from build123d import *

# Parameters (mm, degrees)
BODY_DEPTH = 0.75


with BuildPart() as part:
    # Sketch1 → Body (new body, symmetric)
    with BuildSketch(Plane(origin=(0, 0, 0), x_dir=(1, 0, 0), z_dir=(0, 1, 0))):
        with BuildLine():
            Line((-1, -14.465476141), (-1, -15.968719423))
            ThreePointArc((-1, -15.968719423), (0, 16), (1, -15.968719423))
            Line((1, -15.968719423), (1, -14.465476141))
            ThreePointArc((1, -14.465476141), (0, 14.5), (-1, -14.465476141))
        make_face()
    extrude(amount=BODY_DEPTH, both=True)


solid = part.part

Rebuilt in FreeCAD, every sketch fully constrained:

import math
import FreeCAD as App
import Part
import Sketcher
from FreeCAD import Vector
Q = App.Units.Quantity

doc = App.newDocument("Part")
params = doc.addObject("Spreadsheet::Sheet", "Params")
for row, (alias, value) in enumerate([
    ("sketch1_radius", "16 mm"),
    ("sketch1_radius2", "14.5 mm"),
    ("pad1_length", "1.5 mm"),
], start=1):
    params.set(f"A{row}", alias)
    params.set(f"B{row}", "=" + value)
    params.setAlias(f"B{row}", alias)

body = doc.addObject("PartDesign::Body", "Body")

# Sketch on XZ plane
sketch1 = body.newObject("Sketcher::SketchObject", "Sketch")
sketch1.AttachmentSupport = (doc.getObject("XZ_Plane"), [""])
sketch1.MapMode = "FlatFace"
sketch1.addGeometry(Part.LineSegment(Vector(-1, 15.968719, 0), Vector(-1, 14.465476, 0)), False)
sketch1.addGeometry(Part.ArcOfCircle(Part.Circle(Vector(0, 0, 0), Vector(0, 0, 1), 14.5), math.radians(93.954572), math.radians(446.045428)), False)
sketch1.addGeometry(Part.LineSegment(Vector(1, 14.465476, 0), Vector(1, 15.968719, 0)), False)
sketch1.addGeometry(Part.ArcOfCircle(Part.Circle(Vector(0, 0, 0), Vector(0, 0, 1), 16), math.radians(93.583322), math.radians(446.416678)), False)
sketch1.addConstraint(Sketcher.Constraint("Coincident", 0, 2, 1, 1))
sketch1.addConstraint(Sketcher.Constraint("Coincident", 1, 2, 2, 1))
sketch1.addConstraint(Sketcher.Constraint("Coincident", 2, 2, 3, 2))
sketch1.addConstraint(Sketcher.Constraint("Coincident", 3, 1, 0, 1))
sketch1.addConstraint(Sketcher.Constraint("Vertical", 0))
sketch1.addConstraint(Sketcher.Constraint("Vertical", 2))
sketch1.addConstraint(Sketcher.Constraint("Coincident", 1, 3, -1, 1))
sketch1.addConstraint(Sketcher.Constraint("Coincident", 3, 3, -1, 1))
sketch1.addConstraint(Sketcher.Constraint("Horizontal", 0, 2, 1, 2))
sketch1.addConstraint(Sketcher.Constraint("Radius", 3, Q("16 mm")))
sketch1.addConstraint(Sketcher.Constraint("Radius", 1, Q("14.5 mm")))
sketch1.addConstraint(Sketcher.Constraint("DistanceX", 0, 2, -1, 1, Q("1 mm")))
sketch1.setExpression("Constraints[9]", "Params.sketch1_radius")
sketch1.setExpression("Constraints[10]", "Params.sketch1_radius2")
pad1 = body.newObject("PartDesign::Pad", "Pad")
pad1.Profile = sketch1
pad1.setExpression("Length", "Params.pad1_length")
pad1.Midplane = True

doc.recompute()
